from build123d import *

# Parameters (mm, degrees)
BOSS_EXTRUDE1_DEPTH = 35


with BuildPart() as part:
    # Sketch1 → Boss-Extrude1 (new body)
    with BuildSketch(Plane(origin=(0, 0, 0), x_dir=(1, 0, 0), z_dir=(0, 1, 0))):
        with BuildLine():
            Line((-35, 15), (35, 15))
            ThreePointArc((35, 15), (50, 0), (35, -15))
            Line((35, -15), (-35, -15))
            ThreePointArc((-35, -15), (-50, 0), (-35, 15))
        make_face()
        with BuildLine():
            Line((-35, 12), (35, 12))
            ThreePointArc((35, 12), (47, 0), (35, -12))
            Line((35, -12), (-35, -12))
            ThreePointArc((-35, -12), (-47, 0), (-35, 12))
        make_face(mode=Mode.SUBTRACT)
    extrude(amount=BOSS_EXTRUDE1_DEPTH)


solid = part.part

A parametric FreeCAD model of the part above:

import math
import FreeCAD as App
import Part
import Sketcher
from FreeCAD import Vector
Q = App.Units.Quantity

doc = App.newDocument("Part")
body = doc.addObject("PartDesign::Body", "Body")

# Sketch on XZ plane
sketch1 = body.newObject("Sketcher::SketchObject", "Sketch")
sketch1.AttachmentSupport = (doc.getObject("XZ_Plane"), [""])
sketch1.MapMode = "FlatFace"
sketch1.addGeometry(Part.LineSegment(Vector(35, -15, 0), Vector(-35, -15, 0)), False)
sketch1.addGeometry(Part.ArcOfCircle(Part.Circle(Vector(-35, 0, 0), Vector(0, 0, 1), 15), math.radians(90), math.radians(270)), False)
sketch1.addGeometry(Part.LineSegment(Vector(-35, 15, 0), Vector(35, 15, 0)), False)
sketch1.addGeometry(Part.ArcOfCircle(Part.Circle(Vector(35, 0, 0), Vector(0, 0, 1), 15), math.radians(-90), math.radians(90)), False)
sketch1.addGeometry(Part.LineSegment(Vector(-35, -12, 0), Vector(35, -12, 0)), False)
sketch1.addGeometry(Part.ArcOfCircle(Part.Circle(Vector(35, 0, 0), Vector(0, 0, 1), 12), math.radians(-90), math.radians(90)), False)
sketch1.addGeometry(Part.LineSegment(Vector(35, 12, 0), Vector(-35, 12, 0)), False)
sketch1.addGeometry(Part.ArcOfCircle(Part.Circle(Vector(-35, 0, 0), Vector(0, 0, 1), 12), math.radians(90), math.radians(270)), False)
sketch1.addConstraint(Sketcher.Constraint("Tangent", 0, 2, 1, 2))
sketch1.addConstraint(Sketcher.Constraint("Tangent", 1, 1, 2, 1))
sketch1.addConstraint(Sketcher.Constraint("Tangent", 2, 2, 3, 2))
sketch1.addConstraint(Sketcher.Constraint("Tangent", 3, 1, 0, 1))
sketch1.addConstraint(Sketcher.Constraint("Tangent", 4, 2, 5, 1))
sketch1.addConstraint(Sketcher.Constraint("Tangent", 5, 2, 6, 1))
sketch1.addConstraint(Sketcher.Constraint("Tangent", 6, 2, 7, 1))
sketch1.addConstraint(Sketcher.Constraint("Tangent", 7, 2, 4, 1))
sketch1.addConstraint(Sketcher.Constraint("Horizontal", 0))
sketch1.addConstraint(Sketcher.Constraint("Horizontal", 2))
sketch1.addConstraint(Sketcher.Constraint("Horizontal", 4))
sketch1.addConstraint(Sketcher.Constraint("Horizontal", 6))
sketch1.addConstraint(Sketcher.Constraint("Coincident", 5, 3, 3, 3))
sketch1.addConstraint(Sketcher.Constraint("Symmetric", 1, 3, 3, 3, -1, 1))
sketch1.addConstraint(Sketcher.Constraint("Vertical", 7, 3, 0, 2))
sketch1.addConstraint(Sketcher.Constraint("Radius", 1, Q("15 mm")))
sketch1.addConstraint(Sketcher.Constraint("Radius", 5, Q("12 mm")))
sketch1.addConstraint(Sketcher.Constraint("DistanceX", 0, 2, 0, 1, Q("70 mm")))
pad1 = body.newObject("PartDesign::Pad", "Pad")
pad1.Profile = sketch1
pad1.Length = 35
pad1.Reversed = True

doc.recompute()
